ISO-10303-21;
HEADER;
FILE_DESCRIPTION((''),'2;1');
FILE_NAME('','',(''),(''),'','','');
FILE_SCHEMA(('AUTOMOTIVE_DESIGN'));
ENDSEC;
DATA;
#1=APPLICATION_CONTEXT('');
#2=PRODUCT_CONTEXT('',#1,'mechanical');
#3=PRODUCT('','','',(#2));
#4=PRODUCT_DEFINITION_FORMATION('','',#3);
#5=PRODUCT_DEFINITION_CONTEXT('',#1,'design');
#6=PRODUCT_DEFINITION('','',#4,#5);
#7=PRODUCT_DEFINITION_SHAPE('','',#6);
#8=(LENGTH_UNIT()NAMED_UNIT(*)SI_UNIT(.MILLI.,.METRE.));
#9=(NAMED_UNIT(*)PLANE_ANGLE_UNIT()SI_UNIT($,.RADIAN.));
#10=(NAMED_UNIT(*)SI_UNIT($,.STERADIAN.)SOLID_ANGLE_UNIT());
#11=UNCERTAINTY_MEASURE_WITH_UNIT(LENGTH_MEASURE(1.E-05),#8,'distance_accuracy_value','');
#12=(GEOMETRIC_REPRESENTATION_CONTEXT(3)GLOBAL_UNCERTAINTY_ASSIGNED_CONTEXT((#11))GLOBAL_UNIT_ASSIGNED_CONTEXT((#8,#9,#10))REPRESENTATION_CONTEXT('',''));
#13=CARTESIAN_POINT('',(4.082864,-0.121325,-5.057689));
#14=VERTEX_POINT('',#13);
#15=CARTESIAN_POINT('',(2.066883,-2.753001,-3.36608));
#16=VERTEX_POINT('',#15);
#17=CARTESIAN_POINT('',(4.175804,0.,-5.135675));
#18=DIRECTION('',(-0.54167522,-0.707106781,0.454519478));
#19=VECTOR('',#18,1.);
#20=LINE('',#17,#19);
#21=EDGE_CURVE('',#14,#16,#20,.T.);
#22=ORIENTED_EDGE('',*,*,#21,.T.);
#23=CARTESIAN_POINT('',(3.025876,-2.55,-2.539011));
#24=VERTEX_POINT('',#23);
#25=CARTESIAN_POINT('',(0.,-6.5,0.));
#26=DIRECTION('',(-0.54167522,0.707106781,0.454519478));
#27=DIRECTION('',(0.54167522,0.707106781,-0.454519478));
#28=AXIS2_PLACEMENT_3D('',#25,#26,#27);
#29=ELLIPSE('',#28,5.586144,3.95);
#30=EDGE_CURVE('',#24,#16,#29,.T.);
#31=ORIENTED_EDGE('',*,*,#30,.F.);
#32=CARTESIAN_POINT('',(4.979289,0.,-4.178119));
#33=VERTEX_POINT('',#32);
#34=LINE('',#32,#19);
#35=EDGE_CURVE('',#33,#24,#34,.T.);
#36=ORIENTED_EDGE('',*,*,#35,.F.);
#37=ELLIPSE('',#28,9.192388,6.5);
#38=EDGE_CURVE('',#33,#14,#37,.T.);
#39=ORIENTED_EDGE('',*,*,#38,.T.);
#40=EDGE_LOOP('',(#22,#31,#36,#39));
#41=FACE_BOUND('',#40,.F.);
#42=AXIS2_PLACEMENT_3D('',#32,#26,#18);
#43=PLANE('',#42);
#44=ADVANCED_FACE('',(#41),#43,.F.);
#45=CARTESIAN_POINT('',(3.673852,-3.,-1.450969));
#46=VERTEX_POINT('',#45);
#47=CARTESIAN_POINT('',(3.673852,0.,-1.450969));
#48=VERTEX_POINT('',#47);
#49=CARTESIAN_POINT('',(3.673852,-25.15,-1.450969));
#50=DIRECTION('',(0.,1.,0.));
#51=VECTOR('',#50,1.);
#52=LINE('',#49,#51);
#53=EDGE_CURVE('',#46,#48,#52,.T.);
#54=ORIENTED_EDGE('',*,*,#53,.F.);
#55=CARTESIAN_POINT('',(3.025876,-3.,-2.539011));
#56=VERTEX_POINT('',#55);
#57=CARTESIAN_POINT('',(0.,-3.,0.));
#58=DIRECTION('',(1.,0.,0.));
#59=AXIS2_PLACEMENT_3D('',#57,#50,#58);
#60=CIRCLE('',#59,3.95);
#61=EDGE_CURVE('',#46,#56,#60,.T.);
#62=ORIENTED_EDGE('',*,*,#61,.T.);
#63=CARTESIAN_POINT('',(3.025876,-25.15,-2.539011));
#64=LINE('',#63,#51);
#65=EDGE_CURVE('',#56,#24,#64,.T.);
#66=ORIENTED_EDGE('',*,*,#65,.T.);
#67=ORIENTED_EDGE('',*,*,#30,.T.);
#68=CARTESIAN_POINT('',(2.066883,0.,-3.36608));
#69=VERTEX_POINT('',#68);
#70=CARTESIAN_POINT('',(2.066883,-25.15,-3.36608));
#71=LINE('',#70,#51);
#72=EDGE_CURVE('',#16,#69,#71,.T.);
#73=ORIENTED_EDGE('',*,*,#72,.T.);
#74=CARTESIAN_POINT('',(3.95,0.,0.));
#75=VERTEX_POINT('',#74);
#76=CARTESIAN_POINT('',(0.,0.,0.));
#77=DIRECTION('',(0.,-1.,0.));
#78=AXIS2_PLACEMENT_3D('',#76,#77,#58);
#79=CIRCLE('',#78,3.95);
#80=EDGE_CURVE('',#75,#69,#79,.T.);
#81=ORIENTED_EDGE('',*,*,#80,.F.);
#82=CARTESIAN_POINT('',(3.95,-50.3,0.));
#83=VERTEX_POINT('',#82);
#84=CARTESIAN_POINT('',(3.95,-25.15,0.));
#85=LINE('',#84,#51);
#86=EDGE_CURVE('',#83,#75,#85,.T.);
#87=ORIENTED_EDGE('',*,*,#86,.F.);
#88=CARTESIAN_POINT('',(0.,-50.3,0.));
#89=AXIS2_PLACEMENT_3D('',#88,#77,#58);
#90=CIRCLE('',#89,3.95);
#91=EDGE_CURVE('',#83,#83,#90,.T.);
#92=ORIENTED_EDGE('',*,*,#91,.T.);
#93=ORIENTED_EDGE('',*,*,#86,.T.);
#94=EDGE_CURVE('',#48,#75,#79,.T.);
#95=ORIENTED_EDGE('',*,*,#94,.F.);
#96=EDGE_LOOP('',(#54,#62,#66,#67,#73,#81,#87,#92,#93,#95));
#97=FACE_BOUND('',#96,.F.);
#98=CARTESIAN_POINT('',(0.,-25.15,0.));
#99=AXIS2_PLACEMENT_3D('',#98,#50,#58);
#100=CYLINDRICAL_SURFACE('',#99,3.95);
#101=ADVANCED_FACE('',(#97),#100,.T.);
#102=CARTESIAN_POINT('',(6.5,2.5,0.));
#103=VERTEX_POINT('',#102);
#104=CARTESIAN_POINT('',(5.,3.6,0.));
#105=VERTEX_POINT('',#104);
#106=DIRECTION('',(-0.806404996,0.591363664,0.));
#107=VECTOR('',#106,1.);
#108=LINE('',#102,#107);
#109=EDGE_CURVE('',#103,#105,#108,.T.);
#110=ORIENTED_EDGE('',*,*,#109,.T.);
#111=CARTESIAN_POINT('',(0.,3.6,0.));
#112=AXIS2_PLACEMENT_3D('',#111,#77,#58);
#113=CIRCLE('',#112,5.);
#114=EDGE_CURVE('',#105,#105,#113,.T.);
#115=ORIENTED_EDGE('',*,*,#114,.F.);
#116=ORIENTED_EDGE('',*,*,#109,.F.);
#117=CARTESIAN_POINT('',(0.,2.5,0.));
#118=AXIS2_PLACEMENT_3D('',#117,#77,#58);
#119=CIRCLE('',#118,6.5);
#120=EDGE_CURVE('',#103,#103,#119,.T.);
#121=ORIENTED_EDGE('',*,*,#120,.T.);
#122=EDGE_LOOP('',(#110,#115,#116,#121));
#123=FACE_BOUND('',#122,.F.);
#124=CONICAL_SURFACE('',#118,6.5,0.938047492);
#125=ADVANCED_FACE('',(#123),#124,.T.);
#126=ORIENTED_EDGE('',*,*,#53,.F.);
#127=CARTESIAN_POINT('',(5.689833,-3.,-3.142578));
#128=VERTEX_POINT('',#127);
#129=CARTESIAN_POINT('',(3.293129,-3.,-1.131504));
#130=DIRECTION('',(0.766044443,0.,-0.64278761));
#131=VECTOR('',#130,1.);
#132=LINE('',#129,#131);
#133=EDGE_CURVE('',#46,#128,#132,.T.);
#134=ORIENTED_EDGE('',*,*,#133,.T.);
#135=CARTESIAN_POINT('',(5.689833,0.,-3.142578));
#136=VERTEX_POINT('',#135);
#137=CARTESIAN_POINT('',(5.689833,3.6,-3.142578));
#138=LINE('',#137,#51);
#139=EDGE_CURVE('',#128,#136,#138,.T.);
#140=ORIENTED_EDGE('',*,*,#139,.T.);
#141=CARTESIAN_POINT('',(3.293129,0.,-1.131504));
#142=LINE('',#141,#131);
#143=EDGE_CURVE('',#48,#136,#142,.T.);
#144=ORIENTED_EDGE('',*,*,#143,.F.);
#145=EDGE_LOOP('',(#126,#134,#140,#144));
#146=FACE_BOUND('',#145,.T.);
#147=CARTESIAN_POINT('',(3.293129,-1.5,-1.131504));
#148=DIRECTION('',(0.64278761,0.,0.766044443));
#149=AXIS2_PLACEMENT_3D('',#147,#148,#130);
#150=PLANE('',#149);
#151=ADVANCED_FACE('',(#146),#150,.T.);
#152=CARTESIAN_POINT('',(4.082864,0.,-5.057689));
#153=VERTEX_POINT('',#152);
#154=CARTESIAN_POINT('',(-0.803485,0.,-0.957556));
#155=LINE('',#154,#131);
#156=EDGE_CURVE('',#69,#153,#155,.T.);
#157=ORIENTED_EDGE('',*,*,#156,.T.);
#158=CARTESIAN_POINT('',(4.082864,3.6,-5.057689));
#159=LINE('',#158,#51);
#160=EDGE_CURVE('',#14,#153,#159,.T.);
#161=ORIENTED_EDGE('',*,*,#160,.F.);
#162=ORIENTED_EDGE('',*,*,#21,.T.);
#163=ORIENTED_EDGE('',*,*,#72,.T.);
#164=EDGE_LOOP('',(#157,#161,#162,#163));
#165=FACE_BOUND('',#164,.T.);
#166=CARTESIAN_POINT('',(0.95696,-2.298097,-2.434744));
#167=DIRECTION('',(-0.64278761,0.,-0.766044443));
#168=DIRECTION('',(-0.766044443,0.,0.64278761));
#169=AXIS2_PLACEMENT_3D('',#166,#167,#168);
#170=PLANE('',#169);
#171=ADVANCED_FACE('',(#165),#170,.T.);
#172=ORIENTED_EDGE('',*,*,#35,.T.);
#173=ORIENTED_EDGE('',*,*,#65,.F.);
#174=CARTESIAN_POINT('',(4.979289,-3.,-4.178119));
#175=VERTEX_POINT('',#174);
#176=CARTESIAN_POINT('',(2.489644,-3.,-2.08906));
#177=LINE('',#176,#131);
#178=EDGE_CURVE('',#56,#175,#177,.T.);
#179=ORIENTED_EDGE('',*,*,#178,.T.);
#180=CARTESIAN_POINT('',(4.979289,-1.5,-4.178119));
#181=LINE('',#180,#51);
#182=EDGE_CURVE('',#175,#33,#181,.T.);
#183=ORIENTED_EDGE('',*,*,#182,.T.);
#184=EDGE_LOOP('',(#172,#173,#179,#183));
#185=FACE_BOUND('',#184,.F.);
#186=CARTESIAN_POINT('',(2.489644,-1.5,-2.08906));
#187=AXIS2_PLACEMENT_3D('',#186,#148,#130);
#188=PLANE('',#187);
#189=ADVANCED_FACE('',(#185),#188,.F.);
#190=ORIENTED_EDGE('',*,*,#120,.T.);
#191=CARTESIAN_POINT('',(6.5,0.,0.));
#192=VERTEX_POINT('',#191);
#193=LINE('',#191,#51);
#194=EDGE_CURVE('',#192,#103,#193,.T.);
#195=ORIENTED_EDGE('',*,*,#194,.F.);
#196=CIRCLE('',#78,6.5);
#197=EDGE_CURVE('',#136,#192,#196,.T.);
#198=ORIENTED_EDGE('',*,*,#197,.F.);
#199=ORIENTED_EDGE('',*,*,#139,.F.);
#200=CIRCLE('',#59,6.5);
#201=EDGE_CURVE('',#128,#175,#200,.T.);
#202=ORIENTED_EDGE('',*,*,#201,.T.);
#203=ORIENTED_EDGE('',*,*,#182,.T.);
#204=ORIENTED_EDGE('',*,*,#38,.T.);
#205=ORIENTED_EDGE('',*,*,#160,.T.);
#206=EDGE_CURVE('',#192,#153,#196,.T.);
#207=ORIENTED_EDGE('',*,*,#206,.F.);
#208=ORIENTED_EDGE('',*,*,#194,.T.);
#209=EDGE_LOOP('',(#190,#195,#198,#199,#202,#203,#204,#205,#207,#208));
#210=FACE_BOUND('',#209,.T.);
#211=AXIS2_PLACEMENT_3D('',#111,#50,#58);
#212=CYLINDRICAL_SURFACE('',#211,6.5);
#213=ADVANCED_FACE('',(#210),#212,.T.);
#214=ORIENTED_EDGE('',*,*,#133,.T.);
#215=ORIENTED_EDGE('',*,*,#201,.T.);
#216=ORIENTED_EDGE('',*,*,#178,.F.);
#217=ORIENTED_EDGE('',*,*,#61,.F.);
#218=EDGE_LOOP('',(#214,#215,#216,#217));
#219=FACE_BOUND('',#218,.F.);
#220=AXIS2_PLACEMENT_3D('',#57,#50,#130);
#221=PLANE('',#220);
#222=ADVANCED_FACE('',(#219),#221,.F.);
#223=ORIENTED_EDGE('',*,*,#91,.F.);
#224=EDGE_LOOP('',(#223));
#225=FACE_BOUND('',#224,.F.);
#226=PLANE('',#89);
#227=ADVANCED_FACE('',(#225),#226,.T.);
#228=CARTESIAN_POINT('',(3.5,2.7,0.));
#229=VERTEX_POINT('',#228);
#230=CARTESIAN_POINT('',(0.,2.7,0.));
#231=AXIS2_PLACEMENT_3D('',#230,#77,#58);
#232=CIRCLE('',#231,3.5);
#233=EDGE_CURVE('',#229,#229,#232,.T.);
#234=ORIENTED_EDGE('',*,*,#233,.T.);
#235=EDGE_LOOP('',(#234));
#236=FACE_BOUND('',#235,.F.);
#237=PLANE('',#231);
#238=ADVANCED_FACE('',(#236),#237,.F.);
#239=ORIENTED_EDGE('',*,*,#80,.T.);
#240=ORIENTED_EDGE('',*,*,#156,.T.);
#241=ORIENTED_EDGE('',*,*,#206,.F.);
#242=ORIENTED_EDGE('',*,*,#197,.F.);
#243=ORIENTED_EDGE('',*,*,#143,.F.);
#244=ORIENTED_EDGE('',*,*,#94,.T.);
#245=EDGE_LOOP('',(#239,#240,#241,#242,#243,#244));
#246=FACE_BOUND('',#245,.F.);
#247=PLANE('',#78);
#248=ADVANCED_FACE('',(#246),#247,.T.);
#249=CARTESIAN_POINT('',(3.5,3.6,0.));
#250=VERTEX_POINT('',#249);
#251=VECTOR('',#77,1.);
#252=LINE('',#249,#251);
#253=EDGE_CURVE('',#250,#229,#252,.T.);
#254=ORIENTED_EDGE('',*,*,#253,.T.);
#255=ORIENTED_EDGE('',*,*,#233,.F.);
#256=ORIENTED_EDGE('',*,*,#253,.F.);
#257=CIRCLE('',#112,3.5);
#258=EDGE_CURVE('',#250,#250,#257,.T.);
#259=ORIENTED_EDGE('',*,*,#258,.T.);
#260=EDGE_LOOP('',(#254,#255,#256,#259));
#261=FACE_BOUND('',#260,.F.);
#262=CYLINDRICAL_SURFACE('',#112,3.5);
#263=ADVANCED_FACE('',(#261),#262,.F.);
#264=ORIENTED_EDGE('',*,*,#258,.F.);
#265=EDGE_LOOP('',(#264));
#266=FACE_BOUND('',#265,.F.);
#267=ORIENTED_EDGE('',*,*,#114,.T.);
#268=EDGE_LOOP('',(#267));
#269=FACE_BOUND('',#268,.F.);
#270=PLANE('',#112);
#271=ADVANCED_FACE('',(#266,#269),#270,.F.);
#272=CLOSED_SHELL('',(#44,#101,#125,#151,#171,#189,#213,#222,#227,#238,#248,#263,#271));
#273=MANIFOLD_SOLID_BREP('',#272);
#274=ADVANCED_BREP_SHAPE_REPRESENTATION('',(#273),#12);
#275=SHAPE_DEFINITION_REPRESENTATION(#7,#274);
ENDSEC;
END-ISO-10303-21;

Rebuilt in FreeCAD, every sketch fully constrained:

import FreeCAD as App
import Part
import Sketcher

V = App.Vector
Q = App.Units.Quantity

doc = App.newDocument("Part")
params = doc.addObject("Spreadsheet::Sheet", "Params")
for row, (alias, value) in enumerate([
    ("sketch1_height", "50.3 mm"),
    ("sketch1_width", "3.95 mm"),
    ("revolution_angle", "360 deg"),
    ("sketch2_width", "6.5 mm"),
    ("sketch2_width2", "1.5 mm"),
    ("sketch2_width3", "3.5 mm"),
    ("sketch2_height", "2.5 mm"),
    ("sketch2_height2", "0.9 mm"),
    ("revolution2_angle", "360 deg"),
    ("sketch3_width", "6.5 mm"),
    ("pad1_length", "1.25 mm"),
    ("sketch4_height", "3 mm"),
    ("sketch4_width", "6.5 mm"),
    ("pad2_length", "1.25 mm"),
    ("sketch5_diameter", "13 mm"),
    ("sketch5_width", "26.39 mm"),
], start=1):
    params.set(f"A{row}", alias)
    params.set(f"B{row}", "=" + value)
    params.setAlias(f"B{row}", alias)

body = doc.addObject("PartDesign::Body", "Body")

# Sketch on XY plane
sketch1 = body.newObject("Sketcher::SketchObject", "Sketch")
sketch1.AttachmentSupport = (doc.getObject("XY_Plane"), [""])
sketch1.MapMode = "FlatFace"
sketch1.addGeometry([
    Part.LineSegment(V(0, 0, 0), V(0, -50.3, 0)),
    Part.LineSegment(V(0, -50.3, 0), V(4, -50.3, 0)),
    Part.LineSegment(V(4, -50.3, 0), V(4, 0, 0)),
    Part.LineSegment(V(4, 0, 0), V(0, 0, 0)),
], False)
sketch1.addConstraint([
    Sketcher.Constraint("Coincident", 0, 2, 1, 1),
    Sketcher.Constraint("Coincident", 1, 2, 2, 1),
    Sketcher.Constraint("Coincident", 2, 2, 3, 1),
    Sketcher.Constraint("Coincident", 3, 2, 0, 1),
    Sketcher.Constraint("Vertical", 0),
    Sketcher.Constraint("Horizontal", 1),
    Sketcher.Constraint("Vertical", 2),
    Sketcher.Constraint("Horizontal", 3),
    Sketcher.Constraint("Coincident", 3, 2, -1, 1),
    Sketcher.Constraint("DistanceY", 0, 2, 0, 1, Q("50.3 mm")),
    Sketcher.Constraint("DistanceX", 1, 1, 1, 2, Q("3.95 mm")),
])
sketch1.setExpression("Constraints[9]", "Params.sketch1_height")
sketch1.setExpression("Constraints[10]", "Params.sketch1_width")
revolution = body.newObject("PartDesign::Revolution", "Revolution")
revolution.Profile = sketch1
revolution.ReferenceAxis = (sketch1, ["V_Axis"])
revolution.setExpression("Angle", "Params.revolution_angle")

# Sketch on XY plane
sketch2 = body.newObject("Sketcher::SketchObject", "Sketch001")
sketch2.AttachmentSupport = (doc.getObject("XY_Plane"), [""])
sketch2.MapMode = "FlatFace"
sketch2.addGeometry([
    Part.LineSegment(V(0, 0, 0), V(6.5, 0, 0)),  # 0
    Part.LineSegment(V(6.5, 0, 0), V(6.5, 2.5, 0)),  # 1
    Part.LineSegment(V(6.5, 2.5, 0), V(5, 3.6, 0)),  # 2
    Part.LineSegment(V(5, 3.6, 0), V(3.5, 3.6, 0)),  # 3
    Part.LineSegment(V(3.5, 3.6, 0), V(3.5, 2.7, 0)),  # 4
    Part.LineSegment(V(3.5, 2.7, 0), V(0, 2.7, 0)),  # 5
    Part.LineSegment(V(0, 2.7, 0), V(0, 0, 0)),  # 6
], False)
sketch2.addConstraint([
    Sketcher.Constraint("Coincident", 0, 2, 1, 1),
    Sketcher.Constraint("Coincident", 1, 2, 2, 1),
    Sketcher.Constraint("Coincident", 2, 2, 3, 1),
    Sketcher.Constraint("Coincident", 3, 2, 4, 1),
    Sketcher.Constraint("Coincident", 4, 2, 5, 1),
    Sketcher.Constraint("Coincident", 5, 2, 6, 1),
    Sketcher.Constraint("Coincident", 6, 2, 0, 1),
    Sketcher.Constraint("Horizontal", 0),
    Sketcher.Constraint("Vertical", 1),
    Sketcher.Constraint("Horizontal", 3),
    Sketcher.Constraint("Vertical", 4),
    Sketcher.Constraint("Horizontal", 5),
    Sketcher.Constraint("Vertical", 6),
    Sketcher.Constraint("Coincident", 6, 2, -1, 1),
    Sketcher.Constraint("DistanceX", 0, 1, 0, 2, Q("6.5 mm")),
    Sketcher.Constraint("DistanceX", 3, 2, 3, 1, Q("1.5 mm")),
    Sketcher.Constraint("DistanceX", 5, 2, 5, 1, Q("3.5 mm")),
    Sketcher.Constraint("DistanceY", 1, 1, 1, 2, Q("2.5 mm")),
    Sketcher.Constraint("DistanceY", 4, 2, 4, 1, Q("0.9 mm")),
    Sketcher.Constraint("DistanceY", 6, 2, 6, 1, Q("2.7 mm")),
])
sketch2.setExpression("Constraints[14]", "Params.sketch2_width")
sketch2.setExpression("Constraints[15]", "Params.sketch2_width2")
sketch2.setExpression("Constraints[16]", "Params.sketch2_width3")
sketch2.setExpression("Constraints[17]", "Params.sketch2_height")
sketch2.setExpression("Constraints[18]", "Params.sketch2_height2")
revolution2 = body.newObject("PartDesign::Revolution", "Revolution001")
revolution2.Profile = sketch2
revolution2.ReferenceAxis = (sketch2, ["V_Axis"])
revolution2.setExpression("Angle", "Params.revolution2_angle")

# Sketch on an angled plane
sketch3 = body.newObject("Sketcher::SketchObject", "Sketch002")
sketch3.Placement = App.Placement(V(0, 0, 0), App.Rotation(V(0.766044443, 0, -0.64278761), V(0, 1, 0), V(0.64278761, 0, 0.766044443), "ZXY"))
sketch3.addGeometry([
    Part.LineSegment(V(7, 0, 0), V(0, 0, 0)),
    Part.LineSegment(V(0, 0, 0), V(0, -7, 0)),
    Part.LineSegment(V(0, -7, 0), V(7, 0, 0)),
], False)
sketch3.addConstraint([
    Sketcher.Constraint("Coincident", 0, 2, 1, 1),
    Sketcher.Constraint("Coincident", 1, 2, 2, 1),
    Sketcher.Constraint("Coincident", 2, 2, 0, 1),
    Sketcher.Constraint("Horizontal", 0),
    Sketcher.Constraint("Vertical", 1),
    Sketcher.Constraint("Coincident", 0, 2, -1, 1),
    Sketcher.Constraint("Equal", 0, 1),
    Sketcher.Constraint("DistanceX", 0, 2, 0, 1, Q("6.5 mm")),
])
sketch3.setExpression("Constraints[7]", "Params.sketch3_width")
pad1 = body.newObject("PartDesign::Pad", "Pad")
pad1.Profile = sketch3
pad1.setExpression("Length", "Params.pad1_length")
pad1.Reversed = True

# Sketch on an angled plane
sketch4 = body.newObject("Sketcher::SketchObject", "Sketch003")
sketch4.Placement = App.Placement(V(0, 0, 0), App.Rotation(V(0.766044443, 0, -0.64278761), V(0, 1, 0), V(0.64278761, 0, 0.766044443), "ZXY"))
sketch4.addGeometry([
    Part.LineSegment(V(0, 0, 0), V(0, -3, 0)),
    Part.LineSegment(V(0, -3, 0), V(6.5, -3, 0)),
    Part.LineSegment(V(6.5, -3, 0), V(6.5, 0, 0)),
    Part.LineSegment(V(6.5, 0, 0), V(0, 0, 0)),
], False)
sketch4.addConstraint([
    Sketcher.Constraint("Coincident", 0, 2, 1, 1),
    Sketcher.Constraint("Coincident", 1, 2, 2, 1),
    Sketcher.Constraint("Coincident", 2, 2, 3, 1),
    Sketcher.Constraint("Coincident", 3, 2, 0, 1),
    Sketcher.Constraint("Vertical", 0),
    Sketcher.Constraint("Horizontal", 1),
    Sketcher.Constraint("Vertical", 2),
    Sketcher.Constraint("Horizontal", 3),
    Sketcher.Constraint("Coincident", 3, 2, -1, 1),
    Sketcher.Constraint("DistanceY", 0, 2, 0, 1, Q("3 mm")),
    Sketcher.Constraint("DistanceX", 1, 1, 1, 2, Q("6.5 mm")),
])
sketch4.setExpression("Constraints[9]", "Params.sketch4_height")
sketch4.setExpression("Constraints[10]", "Params.sketch4_width")
pad2 = body.newObject("PartDesign::Pad", "Pad001")
pad2.Profile = sketch4
pad2.setExpression("Length", "Params.pad2_length")

# Sketch on XZ plane
sketch5 = body.newObject("Sketcher::SketchObject", "Sketch004")
sketch5.AttachmentSupport = (doc.getObject("XZ_Plane"), [""])
sketch5.MapMode = "FlatFace"
sketch5.AttachmentOffset = App.Placement(V(0, 0, -3.6), App.Rotation())
sketch5.addGeometry([
    Part.LineSegment(V(-13, -13, 0), V(-13, 13, 0)),  # 0
    Part.LineSegment(V(-13, 13, 0), V(13, 13, 0)),  # 1
    Part.LineSegment(V(13, 13, 0), V(13, -13, 0)),  # 2
    Part.LineSegment(V(13, -13, 0), V(-13, -13, 0)),  # 3
    Part.Circle(V(0, 0, 0), V(0, 0, 1), 6),  # 4
], False)
sketch5.addConstraint([
    Sketcher.Constraint("Coincident", 0, 2, 1, 1),
    Sketcher.Constraint("Coincident", 1, 2, 2, 1),
    Sketcher.Constraint("Coincident", 2, 2, 3, 1),
    Sketcher.Constraint("Coincident", 3, 2, 0, 1),
    Sketcher.Constraint("Vertical", 0),
    Sketcher.Constraint("Horizontal", 1),
    Sketcher.Constraint("Vertical", 2),
    Sketcher.Constraint("Horizontal", 3),
    Sketcher.Constraint("Coincident", 4, 3, -1, 1),
    Sketcher.Constraint("Symmetric", 0, 2, 2, 2, -1, 1),
    Sketcher.Constraint("Equal", 3, 0),
    Sketcher.Constraint("Diameter", 4, Q("13 mm")),
    Sketcher.Constraint("DistanceX", 1, 1, 1, 2, Q("26.39 mm")),
])
sketch5.setExpression("Constraints[11]", "Params.sketch5_diameter")
sketch5.setExpression("Constraints[12]", "Params.sketch5_width")
pocket1 = body.newObject("PartDesign::Pocket", "Pocket")
pocket1.Profile = sketch5
pocket1.Type = "ThroughAll"
pocket1.Reversed = True

doc.recompute()
